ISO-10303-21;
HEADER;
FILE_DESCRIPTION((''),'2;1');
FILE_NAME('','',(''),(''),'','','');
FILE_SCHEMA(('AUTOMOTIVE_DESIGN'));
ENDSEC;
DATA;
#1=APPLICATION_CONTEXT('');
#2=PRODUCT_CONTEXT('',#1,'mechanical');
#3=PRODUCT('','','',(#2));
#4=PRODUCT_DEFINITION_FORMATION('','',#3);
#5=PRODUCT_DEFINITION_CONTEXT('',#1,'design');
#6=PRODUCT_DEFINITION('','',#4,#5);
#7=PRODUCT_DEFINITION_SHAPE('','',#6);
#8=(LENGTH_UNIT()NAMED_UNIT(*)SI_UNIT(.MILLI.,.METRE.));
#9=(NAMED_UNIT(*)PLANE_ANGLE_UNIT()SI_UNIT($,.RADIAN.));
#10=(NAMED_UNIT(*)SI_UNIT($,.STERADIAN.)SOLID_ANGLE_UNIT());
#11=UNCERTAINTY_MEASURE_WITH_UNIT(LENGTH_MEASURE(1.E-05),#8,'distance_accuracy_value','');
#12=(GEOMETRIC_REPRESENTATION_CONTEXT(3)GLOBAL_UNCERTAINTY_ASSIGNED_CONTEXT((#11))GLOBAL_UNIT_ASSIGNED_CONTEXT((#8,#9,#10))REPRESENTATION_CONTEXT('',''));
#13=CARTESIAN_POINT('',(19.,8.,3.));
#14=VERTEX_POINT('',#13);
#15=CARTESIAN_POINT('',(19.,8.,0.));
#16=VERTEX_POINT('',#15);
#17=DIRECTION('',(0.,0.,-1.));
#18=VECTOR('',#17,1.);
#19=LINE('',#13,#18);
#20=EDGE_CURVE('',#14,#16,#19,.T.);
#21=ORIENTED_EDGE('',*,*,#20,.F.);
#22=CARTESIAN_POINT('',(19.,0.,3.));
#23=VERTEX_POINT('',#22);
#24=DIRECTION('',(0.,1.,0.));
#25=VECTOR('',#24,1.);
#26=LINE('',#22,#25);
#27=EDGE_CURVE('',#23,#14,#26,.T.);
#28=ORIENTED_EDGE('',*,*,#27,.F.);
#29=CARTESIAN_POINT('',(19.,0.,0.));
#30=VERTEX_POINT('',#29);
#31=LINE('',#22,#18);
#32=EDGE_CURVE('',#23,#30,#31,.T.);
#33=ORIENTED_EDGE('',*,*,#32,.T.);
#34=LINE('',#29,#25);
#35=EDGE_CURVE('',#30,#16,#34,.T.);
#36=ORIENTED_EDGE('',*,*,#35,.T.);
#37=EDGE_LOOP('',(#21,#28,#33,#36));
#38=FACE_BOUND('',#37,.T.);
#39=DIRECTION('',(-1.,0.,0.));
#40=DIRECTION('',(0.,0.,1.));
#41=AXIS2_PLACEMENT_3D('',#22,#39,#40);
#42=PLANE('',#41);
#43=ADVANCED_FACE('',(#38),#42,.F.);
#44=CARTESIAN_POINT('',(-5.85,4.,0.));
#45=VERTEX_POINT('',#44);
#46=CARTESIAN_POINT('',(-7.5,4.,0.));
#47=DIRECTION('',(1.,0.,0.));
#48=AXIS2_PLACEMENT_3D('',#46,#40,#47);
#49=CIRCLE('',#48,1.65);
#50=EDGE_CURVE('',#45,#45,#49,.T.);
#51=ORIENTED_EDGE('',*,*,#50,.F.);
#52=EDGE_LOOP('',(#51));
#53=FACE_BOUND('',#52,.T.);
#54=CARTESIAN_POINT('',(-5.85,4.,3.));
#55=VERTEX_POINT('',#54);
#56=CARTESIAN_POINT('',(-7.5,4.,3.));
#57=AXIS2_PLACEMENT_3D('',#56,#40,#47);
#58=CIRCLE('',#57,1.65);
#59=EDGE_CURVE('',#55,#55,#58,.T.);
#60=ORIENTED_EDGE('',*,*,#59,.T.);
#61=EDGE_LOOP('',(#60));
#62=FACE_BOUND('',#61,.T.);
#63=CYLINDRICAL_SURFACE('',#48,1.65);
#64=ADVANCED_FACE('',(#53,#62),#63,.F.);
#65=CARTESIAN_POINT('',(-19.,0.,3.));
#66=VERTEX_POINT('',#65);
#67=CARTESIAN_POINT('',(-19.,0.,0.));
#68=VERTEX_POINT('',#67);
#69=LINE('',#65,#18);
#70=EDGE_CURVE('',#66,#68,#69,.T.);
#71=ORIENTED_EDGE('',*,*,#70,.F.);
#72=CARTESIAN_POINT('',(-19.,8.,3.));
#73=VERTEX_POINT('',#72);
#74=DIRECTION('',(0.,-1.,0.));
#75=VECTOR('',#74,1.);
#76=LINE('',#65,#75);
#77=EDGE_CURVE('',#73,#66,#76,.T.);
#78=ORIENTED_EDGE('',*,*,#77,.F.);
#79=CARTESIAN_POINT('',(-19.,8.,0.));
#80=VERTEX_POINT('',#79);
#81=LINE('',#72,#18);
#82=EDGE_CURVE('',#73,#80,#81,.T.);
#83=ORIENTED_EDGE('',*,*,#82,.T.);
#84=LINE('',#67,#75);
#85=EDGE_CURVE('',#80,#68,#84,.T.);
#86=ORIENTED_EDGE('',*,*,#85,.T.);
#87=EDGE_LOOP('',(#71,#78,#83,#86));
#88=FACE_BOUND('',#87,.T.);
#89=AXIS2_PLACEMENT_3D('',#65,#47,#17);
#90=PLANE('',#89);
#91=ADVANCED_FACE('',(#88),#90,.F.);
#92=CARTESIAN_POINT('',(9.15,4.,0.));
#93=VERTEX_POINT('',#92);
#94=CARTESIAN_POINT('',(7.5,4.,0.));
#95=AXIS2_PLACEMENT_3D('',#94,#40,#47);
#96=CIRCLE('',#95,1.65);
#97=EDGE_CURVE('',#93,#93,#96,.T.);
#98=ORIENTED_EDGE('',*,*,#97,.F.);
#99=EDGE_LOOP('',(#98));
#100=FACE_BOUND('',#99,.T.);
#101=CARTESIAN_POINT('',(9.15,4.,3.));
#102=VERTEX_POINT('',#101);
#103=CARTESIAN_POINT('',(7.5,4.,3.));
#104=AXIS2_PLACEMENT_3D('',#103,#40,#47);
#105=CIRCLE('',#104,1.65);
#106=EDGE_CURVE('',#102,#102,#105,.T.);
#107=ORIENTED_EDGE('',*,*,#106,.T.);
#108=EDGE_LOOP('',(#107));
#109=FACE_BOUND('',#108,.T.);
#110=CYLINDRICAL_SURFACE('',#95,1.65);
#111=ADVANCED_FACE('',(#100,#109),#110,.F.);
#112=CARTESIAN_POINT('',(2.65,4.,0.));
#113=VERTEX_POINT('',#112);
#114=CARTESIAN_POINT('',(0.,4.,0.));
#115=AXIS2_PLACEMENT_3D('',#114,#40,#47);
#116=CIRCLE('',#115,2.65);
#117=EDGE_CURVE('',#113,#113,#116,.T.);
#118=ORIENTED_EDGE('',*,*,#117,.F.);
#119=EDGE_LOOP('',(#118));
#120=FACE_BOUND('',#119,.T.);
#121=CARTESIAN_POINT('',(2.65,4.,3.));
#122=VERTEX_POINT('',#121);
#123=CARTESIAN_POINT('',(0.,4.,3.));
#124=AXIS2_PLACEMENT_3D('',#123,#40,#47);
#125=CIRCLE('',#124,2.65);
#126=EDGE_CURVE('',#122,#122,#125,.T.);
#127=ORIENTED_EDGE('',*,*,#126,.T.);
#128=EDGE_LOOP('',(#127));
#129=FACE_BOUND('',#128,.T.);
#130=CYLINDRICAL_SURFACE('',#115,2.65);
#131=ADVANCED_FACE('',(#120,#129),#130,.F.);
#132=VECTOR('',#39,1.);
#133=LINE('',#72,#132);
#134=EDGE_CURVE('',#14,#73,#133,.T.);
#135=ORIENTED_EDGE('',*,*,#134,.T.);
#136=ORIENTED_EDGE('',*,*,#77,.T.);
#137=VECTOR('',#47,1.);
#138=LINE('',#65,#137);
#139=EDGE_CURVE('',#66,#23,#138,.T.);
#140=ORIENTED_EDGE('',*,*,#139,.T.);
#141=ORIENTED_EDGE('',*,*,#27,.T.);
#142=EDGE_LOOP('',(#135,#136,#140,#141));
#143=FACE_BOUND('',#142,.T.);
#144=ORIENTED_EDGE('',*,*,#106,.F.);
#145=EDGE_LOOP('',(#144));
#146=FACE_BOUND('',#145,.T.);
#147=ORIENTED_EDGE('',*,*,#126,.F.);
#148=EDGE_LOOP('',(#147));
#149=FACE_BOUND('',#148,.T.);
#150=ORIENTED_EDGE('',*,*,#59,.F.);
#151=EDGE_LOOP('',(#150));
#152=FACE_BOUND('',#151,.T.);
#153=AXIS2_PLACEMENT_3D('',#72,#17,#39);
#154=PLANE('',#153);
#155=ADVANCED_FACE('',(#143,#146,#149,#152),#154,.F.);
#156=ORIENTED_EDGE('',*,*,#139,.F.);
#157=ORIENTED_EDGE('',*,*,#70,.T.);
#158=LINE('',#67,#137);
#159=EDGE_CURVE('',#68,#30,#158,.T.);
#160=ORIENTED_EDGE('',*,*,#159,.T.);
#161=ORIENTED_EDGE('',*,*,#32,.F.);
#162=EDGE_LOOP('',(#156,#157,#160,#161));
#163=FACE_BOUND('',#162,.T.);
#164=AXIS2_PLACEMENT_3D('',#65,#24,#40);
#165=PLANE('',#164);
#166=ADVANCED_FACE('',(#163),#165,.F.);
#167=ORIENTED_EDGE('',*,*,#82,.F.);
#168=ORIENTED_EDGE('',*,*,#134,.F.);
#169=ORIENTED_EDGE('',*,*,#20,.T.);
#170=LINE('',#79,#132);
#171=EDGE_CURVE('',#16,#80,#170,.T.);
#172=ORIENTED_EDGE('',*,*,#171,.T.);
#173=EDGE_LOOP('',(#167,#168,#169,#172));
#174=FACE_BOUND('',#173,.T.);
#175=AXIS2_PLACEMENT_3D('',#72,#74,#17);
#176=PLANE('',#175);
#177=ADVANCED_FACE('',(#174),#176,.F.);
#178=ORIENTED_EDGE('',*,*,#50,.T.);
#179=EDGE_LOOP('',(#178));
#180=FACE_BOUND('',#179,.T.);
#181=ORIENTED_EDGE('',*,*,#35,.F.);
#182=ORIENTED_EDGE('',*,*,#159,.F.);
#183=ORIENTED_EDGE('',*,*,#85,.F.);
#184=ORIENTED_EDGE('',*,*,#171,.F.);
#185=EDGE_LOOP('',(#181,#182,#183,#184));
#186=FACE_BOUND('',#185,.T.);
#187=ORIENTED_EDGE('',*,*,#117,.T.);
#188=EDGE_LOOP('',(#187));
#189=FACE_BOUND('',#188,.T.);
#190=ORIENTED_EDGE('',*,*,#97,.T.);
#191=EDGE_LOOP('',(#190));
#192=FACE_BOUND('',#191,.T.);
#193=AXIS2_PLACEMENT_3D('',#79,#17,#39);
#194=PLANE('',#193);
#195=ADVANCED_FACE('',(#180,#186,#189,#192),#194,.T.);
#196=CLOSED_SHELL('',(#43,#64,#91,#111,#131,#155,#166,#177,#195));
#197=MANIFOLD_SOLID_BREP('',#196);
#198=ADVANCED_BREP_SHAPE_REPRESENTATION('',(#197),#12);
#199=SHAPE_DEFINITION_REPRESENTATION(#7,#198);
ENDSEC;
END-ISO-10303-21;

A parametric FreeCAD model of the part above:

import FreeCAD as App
import Part
import Sketcher

V = App.Vector
Q = App.Units.Quantity


def add_polygon(sketch, points):
    """Adds a closed chain of lines whose ends are joined by coincident constraints."""
    first, n = sketch.GeometryCount, len(points)
    for a, b in zip(points, points[1:] + points[:1]):
        sketch.addGeometry(Part.LineSegment(App.Vector(*a, 0), App.Vector(*b, 0)), False)
    for i in range(n):
        sketch.addConstraint(Sketcher.Constraint("Coincident", first + i, 2, first + (i + 1) % n, 1))

doc = App.newDocument("Part")
params = doc.addObject("Spreadsheet::Sheet", "Params")
for row, (alias, value) in enumerate([
    ("sketch1_width", "38 mm"),
    ("sketch1_height", "8 mm"),
    ("pad1_length", "3 mm"),
    ("sketch2_diameter", "5.3 mm"),
    ("sketch2_diameter2", "3.3 mm"),
], start=1):
    params.set(f"A{row}", alias)
    params.set(f"B{row}", "=" + value)
    params.setAlias(f"B{row}", alias)

body = doc.addObject("PartDesign::Body", "Body")

# Sketch on XY plane
sketch1 = body.newObject("Sketcher::SketchObject", "Sketch")
sketch1.AttachmentSupport = (doc.getObject("XY_Plane"), [""])
sketch1.MapMode = "FlatFace"
add_polygon(sketch1, [(-19, 8), (-19, 0), (19, 0), (19, 8)])  # lines 0-3
sketch1.addConstraint(Sketcher.Constraint("Vertical", 0))
sketch1.addConstraint(Sketcher.Constraint("Horizontal", 1))
sketch1.addConstraint(Sketcher.Constraint("Vertical", 2))
sketch1.addConstraint(Sketcher.Constraint("Horizontal", 3))
sketch1.addConstraint(Sketcher.Constraint("Symmetric", 0, 2, 1, 2, -1, 1))
sketch1.addConstraint(Sketcher.Constraint("DistanceX", 1, 1, 1, 2, Q("38 mm")))
sketch1.addConstraint(Sketcher.Constraint("DistanceY", 0, 2, 0, 1, Q("8 mm")))
sketch1.setExpression("Constraints[9]", "Params.sketch1_width")
sketch1.setExpression("Constraints[10]", "Params.sketch1_height")
pad1 = body.newObject("PartDesign::Pad", "Pad")
pad1.Profile = sketch1
pad1.setExpression("Length", "Params.pad1_length")

# Sketch on XY plane
sketch2 = body.newObject("Sketcher::SketchObject", "Sketch001")
sketch2.AttachmentSupport = (doc.getObject("XY_Plane"), [""])
sketch2.MapMode = "FlatFace"
sketch2.AttachmentOffset = App.Placement(V(0, 0, 3), App.Rotation())
sketch2.addGeometry(Part.Circle(V(0, 4, 0), V(0, 0, 1), 2.65), False)
sketch2.addGeometry(Part.Circle(V(-7.5, 4, 0), V(0, 0, 1), 1.65), False)
sketch2.addGeometry(Part.Circle(V(7.5, 4, 0), V(0, 0, 1), 1.65), False)
sketch2.addConstraint(Sketcher.Constraint("Equal", 1, 2))
sketch2.addConstraint(Sketcher.Constraint("Symmetric", 1, 3, 2, 3, -2))
sketch2.addConstraint(Sketcher.Constraint("PointOnObject", 0, 3, -2))
sketch2.addConstraint(Sketcher.Constraint("Horizontal", 0, 3, 1, 3))
sketch2.addConstraint(Sketcher.Constraint("Diameter", 0, Q("5.3 mm")))
sketch2.addConstraint(Sketcher.Constraint("Diameter", 1, Q("3.3 mm")))
sketch2.addConstraint(Sketcher.Constraint("DistanceY", -1, 1, 0, 3, Q("4 mm")))
sketch2.addConstraint(Sketcher.Constraint("DistanceX", 1, 3, 2, 3, Q("15 mm")))
sketch2.setExpression("Constraints[4]", "Params.sketch2_diameter")
sketch2.setExpression("Constraints[5]", "Params.sketch2_diameter2")
pocket1 = body.newObject("PartDesign::Pocket", "Pocket")
pocket1.Profile = sketch2
pocket1.Type = "ThroughAll"

doc.recompute()
